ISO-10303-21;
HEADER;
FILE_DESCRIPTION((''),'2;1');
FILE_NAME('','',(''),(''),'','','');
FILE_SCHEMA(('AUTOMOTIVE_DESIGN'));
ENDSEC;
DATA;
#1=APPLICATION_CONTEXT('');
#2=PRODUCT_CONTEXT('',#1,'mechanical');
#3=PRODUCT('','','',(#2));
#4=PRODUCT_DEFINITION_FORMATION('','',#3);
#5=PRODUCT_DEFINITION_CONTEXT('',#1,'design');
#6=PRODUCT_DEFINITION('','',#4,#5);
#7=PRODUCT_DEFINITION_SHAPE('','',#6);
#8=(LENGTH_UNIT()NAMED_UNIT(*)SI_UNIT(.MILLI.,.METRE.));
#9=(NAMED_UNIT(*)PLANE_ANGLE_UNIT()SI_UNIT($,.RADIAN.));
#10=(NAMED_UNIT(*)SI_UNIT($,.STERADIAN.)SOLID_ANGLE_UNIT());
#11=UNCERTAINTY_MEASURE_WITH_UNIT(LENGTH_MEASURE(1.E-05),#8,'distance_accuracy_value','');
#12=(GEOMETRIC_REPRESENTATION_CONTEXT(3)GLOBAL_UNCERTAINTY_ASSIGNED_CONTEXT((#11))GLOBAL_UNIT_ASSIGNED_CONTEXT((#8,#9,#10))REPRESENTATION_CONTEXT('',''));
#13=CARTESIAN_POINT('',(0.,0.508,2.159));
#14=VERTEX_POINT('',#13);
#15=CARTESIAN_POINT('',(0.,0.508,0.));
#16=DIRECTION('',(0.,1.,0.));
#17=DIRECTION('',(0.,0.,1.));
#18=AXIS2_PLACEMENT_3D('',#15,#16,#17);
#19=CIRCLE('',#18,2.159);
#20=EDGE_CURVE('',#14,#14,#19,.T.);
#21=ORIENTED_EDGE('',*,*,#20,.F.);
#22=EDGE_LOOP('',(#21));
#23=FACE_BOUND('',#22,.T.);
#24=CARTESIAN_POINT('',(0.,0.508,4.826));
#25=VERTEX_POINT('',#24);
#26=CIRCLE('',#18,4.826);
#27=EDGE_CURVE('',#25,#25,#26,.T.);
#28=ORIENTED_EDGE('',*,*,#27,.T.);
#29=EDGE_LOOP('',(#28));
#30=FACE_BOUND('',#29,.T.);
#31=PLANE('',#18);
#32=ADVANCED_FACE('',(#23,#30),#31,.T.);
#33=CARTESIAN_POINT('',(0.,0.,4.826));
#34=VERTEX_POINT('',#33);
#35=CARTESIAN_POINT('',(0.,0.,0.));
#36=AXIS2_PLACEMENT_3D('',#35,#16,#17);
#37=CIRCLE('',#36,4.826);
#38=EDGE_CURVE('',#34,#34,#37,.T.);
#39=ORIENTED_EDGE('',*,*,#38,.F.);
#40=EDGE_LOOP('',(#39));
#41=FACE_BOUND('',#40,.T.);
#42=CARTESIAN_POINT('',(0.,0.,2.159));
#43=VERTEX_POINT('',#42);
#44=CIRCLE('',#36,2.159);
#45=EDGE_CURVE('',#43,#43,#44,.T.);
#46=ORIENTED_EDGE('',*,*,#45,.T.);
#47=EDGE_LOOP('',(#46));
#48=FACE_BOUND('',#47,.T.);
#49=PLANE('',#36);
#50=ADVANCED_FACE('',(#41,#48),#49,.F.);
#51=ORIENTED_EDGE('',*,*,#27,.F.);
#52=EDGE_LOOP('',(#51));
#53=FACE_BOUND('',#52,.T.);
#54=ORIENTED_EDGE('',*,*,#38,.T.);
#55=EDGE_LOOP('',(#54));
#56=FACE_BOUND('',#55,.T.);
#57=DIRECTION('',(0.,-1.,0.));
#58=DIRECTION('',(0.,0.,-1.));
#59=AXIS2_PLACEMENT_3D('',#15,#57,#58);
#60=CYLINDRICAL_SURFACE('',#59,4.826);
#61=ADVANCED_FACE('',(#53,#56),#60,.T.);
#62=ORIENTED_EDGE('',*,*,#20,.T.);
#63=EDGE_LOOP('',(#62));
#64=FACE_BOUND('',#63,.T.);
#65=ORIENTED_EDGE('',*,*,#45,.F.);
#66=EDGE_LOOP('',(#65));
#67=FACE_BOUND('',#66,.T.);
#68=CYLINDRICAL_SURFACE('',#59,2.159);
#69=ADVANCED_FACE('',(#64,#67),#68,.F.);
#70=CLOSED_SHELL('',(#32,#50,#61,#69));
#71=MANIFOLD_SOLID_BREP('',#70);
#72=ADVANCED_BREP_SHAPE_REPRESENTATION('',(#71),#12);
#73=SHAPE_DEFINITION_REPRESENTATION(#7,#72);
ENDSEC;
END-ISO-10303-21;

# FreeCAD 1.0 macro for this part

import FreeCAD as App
import Part
import Sketcher
from FreeCAD import Vector
Q = App.Units.Quantity

doc = App.newDocument("Part")
body = doc.addObject("PartDesign::Body", "Body")

# Sketch on XZ plane
sketch1 = body.newObject("Sketcher::SketchObject", "Sketch")
sketch1.AttachmentSupport = (doc.getObject("XZ_Plane"), [""])
sketch1.MapMode = "FlatFace"
sketch1.addGeometry([
    Part.Circle(Vector(0, 0, 0), Vector(0, 0, 1), 4.8),
    Part.Circle(Vector(0, 0, 0), Vector(0, 0, 1), 2.2),
], False)
sketch1.addConstraint([
    Sketcher.Constraint("Coincident", 0, 3, -1, 1),
    Sketcher.Constraint("Coincident", 1, 3, -1, 1),
    Sketcher.Constraint("Diameter", 0, Q("0.38 in")),
    Sketcher.Constraint("Diameter", 1, Q("0.17 in")),
])
pad1 = body.newObject("PartDesign::Pad", "Pad")
pad1.Profile = sketch1
pad1.Length = Q("0.02 in")
pad1.Reversed = True

doc.recompute()
